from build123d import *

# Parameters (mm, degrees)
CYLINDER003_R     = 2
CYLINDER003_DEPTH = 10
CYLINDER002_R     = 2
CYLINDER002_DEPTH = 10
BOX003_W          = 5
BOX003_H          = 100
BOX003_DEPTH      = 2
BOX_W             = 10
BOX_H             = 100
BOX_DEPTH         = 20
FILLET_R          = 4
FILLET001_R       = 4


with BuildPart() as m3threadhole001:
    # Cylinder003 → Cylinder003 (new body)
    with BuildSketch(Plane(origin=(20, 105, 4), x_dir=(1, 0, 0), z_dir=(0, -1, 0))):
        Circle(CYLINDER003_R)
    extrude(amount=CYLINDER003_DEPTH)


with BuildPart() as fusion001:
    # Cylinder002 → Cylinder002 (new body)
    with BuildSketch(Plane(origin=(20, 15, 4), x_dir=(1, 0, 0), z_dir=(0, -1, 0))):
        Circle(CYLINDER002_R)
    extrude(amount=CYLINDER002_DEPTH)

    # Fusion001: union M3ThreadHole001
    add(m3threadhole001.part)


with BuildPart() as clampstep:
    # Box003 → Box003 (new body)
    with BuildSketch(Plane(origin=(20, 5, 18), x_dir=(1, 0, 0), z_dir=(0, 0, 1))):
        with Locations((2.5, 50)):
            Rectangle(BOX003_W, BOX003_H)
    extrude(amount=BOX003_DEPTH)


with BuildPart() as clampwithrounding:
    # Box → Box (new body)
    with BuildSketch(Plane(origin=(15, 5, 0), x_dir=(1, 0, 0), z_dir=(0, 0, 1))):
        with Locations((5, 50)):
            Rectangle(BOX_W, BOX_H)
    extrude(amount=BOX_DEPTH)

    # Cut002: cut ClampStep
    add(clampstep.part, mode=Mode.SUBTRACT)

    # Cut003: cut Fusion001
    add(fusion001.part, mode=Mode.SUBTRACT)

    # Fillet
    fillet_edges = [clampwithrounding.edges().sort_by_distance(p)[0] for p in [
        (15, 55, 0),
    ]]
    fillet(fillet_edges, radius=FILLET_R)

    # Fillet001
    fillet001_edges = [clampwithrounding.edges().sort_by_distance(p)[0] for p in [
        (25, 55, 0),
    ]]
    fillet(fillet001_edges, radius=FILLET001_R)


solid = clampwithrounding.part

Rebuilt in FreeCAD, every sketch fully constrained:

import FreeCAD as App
import Part
import Sketcher

V = App.Vector
Q = App.Units.Quantity


def edges_at(feature, points):
    """Names of the edges that pass closest to the given points."""
    edges = feature.Shape.Edges
    near = lambda p: min(range(len(edges)), key=lambda i: edges[i].distToShape(Part.Vertex(*p))[0])
    return sorted({f"Edge{near(p) + 1}" for p in points})

doc = App.newDocument("Part")
body = doc.addObject("PartDesign::Body", "Body")

# Sketch on XZ plane
sketch1 = body.newObject("Sketcher::SketchObject", "Sketch")
sketch1.AttachmentSupport = (doc.getObject("XZ_Plane"), [""])
sketch1.MapMode = "FlatFace"
sketch1.AttachmentOffset = App.Placement(V(0, 0, -105), App.Rotation())
sketch1.addGeometry(Part.Circle(V(20, 4, 0), V(0, 0, 1), 2), False)
sketch1.addConstraint([
    Sketcher.Constraint("Diameter", 0, Q("4 mm")),
    Sketcher.Constraint("DistanceX", -1, 1, 0, 3, Q("20 mm")),
    Sketcher.Constraint("DistanceY", -1, 1, 0, 3, Q("4 mm")),
])
pad1 = body.newObject("PartDesign::Pad", "Pad")
pad1.Profile = sketch1
pad1.Length = 10
body2 = doc.addObject("PartDesign::Body", "Body001")
body2.AllowCompound = True

# Sketch on XZ plane
sketch2 = body2.newObject("Sketcher::SketchObject", "Sketch001")
sketch2.AttachmentSupport = (doc.getObject("XZ_Plane001"), [""])
sketch2.MapMode = "FlatFace"
sketch2.AttachmentOffset = App.Placement(V(0, 0, -15), App.Rotation())
sketch2.addGeometry(Part.Circle(V(20, 4, 0), V(0, 0, 1), 2), False)
sketch2.addConstraint([
    Sketcher.Constraint("Diameter", 0, Q("4 mm")),
    Sketcher.Constraint("DistanceX", -1, 1, 0, 3, Q("20 mm")),
    Sketcher.Constraint("DistanceY", -1, 1, 0, 3, Q("4 mm")),
])
pad2 = body2.newObject("PartDesign::Pad", "Pad001")
pad2.Profile = sketch2
pad2.Length = 10
doc.recompute()

boolean = body2.newObject("PartDesign::Boolean", "Boolean")
boolean.Type = "Fuse"
boolean.addObjects([body])
body3 = doc.addObject("PartDesign::Body", "Body002")

# Sketch on XY plane
sketch3 = body3.newObject("Sketcher::SketchObject", "Sketch002")
sketch3.AttachmentSupport = (doc.getObject("XY_Plane002"), [""])
sketch3.MapMode = "FlatFace"
sketch3.AttachmentOffset = App.Placement(V(0, 0, 18), App.Rotation())
sketch3.addGeometry([
    Part.LineSegment(V(20, 105, 0), V(20, 5, 0)),
    Part.LineSegment(V(20, 5, 0), V(25, 5, 0)),
    Part.LineSegment(V(25, 5, 0), V(25, 105, 0)),
    Part.LineSegment(V(25, 105, 0), V(20, 105, 0)),
], False)
sketch3.addConstraint([
    Sketcher.Constraint("Coincident", 0, 2, 1, 1),
    Sketcher.Constraint("Coincident", 1, 2, 2, 1),
    Sketcher.Constraint("Coincident", 2, 2, 3, 1),
    Sketcher.Constraint("Coincident", 3, 2, 0, 1),
    Sketcher.Constraint("Vertical", 0),
    Sketcher.Constraint("Horizontal", 1),
    Sketcher.Constraint("Vertical", 2),
    Sketcher.Constraint("Horizontal", 3),
    Sketcher.Constraint("DistanceX", 1, 1, 1, 2, Q("5 mm")),
    Sketcher.Constraint("DistanceY", 0, 2, 0, 1, Q("100 mm")),
    Sketcher.Constraint("DistanceX", -1, 1, 0, 2, Q("20 mm")),
    Sketcher.Constraint("DistanceY", -1, 1, 0, 2, Q("5 mm")),
])
pad3 = body3.newObject("PartDesign::Pad", "Pad002")
pad3.Profile = sketch3
pad3.Length = 2
body4 = doc.addObject("PartDesign::Body", "Body003")

# Sketch on XY plane
sketch4 = body4.newObject("Sketcher::SketchObject", "Sketch003")
sketch4.AttachmentSupport = (doc.getObject("XY_Plane003"), [""])
sketch4.MapMode = "FlatFace"
sketch4.addGeometry([
    Part.LineSegment(V(15, 105, 0), V(15, 5, 0)),
    Part.LineSegment(V(15, 5, 0), V(25, 5, 0)),
    Part.LineSegment(V(25, 5, 0), V(25, 105, 0)),
    Part.LineSegment(V(25, 105, 0), V(15, 105, 0)),
], False)
sketch4.addConstraint([
    Sketcher.Constraint("Coincident", 0, 2, 1, 1),
    Sketcher.Constraint("Coincident", 1, 2, 2, 1),
    Sketcher.Constraint("Coincident", 2, 2, 3, 1),
    Sketcher.Constraint("Coincident", 3, 2, 0, 1),
    Sketcher.Constraint("Vertical", 0),
    Sketcher.Constraint("Horizontal", 1),
    Sketcher.Constraint("Vertical", 2),
    Sketcher.Constraint("Horizontal", 3),
    Sketcher.Constraint("DistanceX", 1, 1, 1, 2, Q("10 mm")),
    Sketcher.Constraint("DistanceY", 0, 2, 0, 1, Q("100 mm")),
    Sketcher.Constraint("DistanceX", -1, 1, 0, 2, Q("15 mm")),
    Sketcher.Constraint("DistanceY", -1, 1, 0, 2, Q("5 mm")),
])
pad4 = body4.newObject("PartDesign::Pad", "Pad003")
pad4.Profile = sketch4
pad4.Length = 20
doc.recompute()

boolean2 = body4.newObject("PartDesign::Boolean", "Boolean001")
boolean2.Type = "Cut"
boolean2.addObjects([body3])
doc.recompute()

boolean3 = body4.newObject("PartDesign::Boolean", "Boolean002")
boolean3.Type = "Cut"
boolean3.addObjects([body2])
doc.recompute()

fillet = body4.newObject("PartDesign::Fillet", "Fillet")
fillet.Base = (boolean3, edges_at(boolean3, [(15, 55, 0)]))
fillet.Radius = 4
doc.recompute()

fillet2 = body4.newObject("PartDesign::Fillet", "Fillet001")
fillet2.Base = (fillet, edges_at(fillet, [(25, 55, 0)]))
fillet2.Radius = 4

doc.recompute()
